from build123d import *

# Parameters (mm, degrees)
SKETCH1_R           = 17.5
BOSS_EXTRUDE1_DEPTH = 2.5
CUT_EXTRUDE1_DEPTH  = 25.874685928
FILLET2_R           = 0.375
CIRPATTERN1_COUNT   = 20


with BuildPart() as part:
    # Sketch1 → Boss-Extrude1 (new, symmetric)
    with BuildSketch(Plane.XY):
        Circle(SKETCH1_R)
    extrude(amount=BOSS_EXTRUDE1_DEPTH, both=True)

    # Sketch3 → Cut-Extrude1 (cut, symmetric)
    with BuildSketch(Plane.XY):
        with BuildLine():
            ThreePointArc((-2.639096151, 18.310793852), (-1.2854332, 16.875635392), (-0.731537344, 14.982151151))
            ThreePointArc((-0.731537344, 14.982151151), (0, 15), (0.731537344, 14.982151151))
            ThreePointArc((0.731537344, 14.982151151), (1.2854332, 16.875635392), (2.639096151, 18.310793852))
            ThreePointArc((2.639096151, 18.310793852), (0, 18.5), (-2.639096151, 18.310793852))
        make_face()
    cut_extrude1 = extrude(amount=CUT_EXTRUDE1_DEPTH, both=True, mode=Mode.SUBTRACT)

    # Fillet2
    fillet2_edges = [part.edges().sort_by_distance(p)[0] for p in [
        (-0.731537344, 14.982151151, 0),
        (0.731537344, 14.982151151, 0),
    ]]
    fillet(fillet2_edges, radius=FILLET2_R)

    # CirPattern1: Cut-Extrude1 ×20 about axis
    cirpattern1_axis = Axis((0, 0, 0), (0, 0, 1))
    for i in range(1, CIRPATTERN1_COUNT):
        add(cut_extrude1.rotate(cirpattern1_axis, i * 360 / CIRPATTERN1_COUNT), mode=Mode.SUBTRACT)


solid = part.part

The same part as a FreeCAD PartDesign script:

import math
import FreeCAD as App
import Part
import Sketcher


def edges_at(feature, points):
    """Names of the edges that pass closest to the given points."""
    edges = feature.Shape.Edges
    near = lambda p: min(range(len(edges)), key=lambda i: edges[i].distToShape(Part.Vertex(*p))[0])
    return sorted({f"Edge{near(p) + 1}" for p in points})

doc = App.newDocument("Part")
params = doc.addObject("Spreadsheet::Sheet", "Params")
for row, (alias, value) in enumerate([
    ("sketch1_diameter", "35 mm"),
    ("pad1_length", "5 mm"),
    ("sketch2_radius", "15 mm"),
    ("sketch2_radius2", "18.5 mm"),
    ("pocket1_length", "51.749372 mm"),
    ("fillet_radius", "0.375 mm"),
], start=1):
    params.set(f"A{row}", alias)
    params.set(f"B{row}", "=" + value)
    params.setAlias(f"B{row}", alias)

body = doc.addObject("PartDesign::Body", "Body")

# Sketch on XY plane
sketch1 = body.newObject("Sketcher::SketchObject", "Sketch")
sketch1.AttachmentSupport = (doc.getObject("XY_Plane"), [""])
sketch1.MapMode = "FlatFace"
sketch1.addGeometry(Part.Circle(App.Vector(0, 0, 0), App.Vector(0, 0, 1), 17.5), False)
sketch1.addConstraint(Sketcher.Constraint("Coincident", 0, 3, -1, 1))
sketch1.addConstraint(Sketcher.Constraint("Diameter", 0, 35.0))
sketch1.setExpression("Constraints[1]", "Params.sketch1_diameter")
pad1 = body.newObject("PartDesign::Pad", "Pad")
pad1.Profile = sketch1
pad1.setExpression("Length", "Params.pad1_length")
pad1.Midplane = True

# Sketch on XY plane
sketch2 = body.newObject("Sketcher::SketchObject", "Sketch001")
sketch2.AttachmentSupport = (doc.getObject("XY_Plane"), [""])
sketch2.MapMode = "FlatFace"
sketch2.addGeometry(Part.ArcOfCircle(Part.Circle(App.Vector(-4.94884, 14.776232, 0), App.Vector(0, 0, 1), 4.222327), math.radians(2.795376), math.radians(56.836431)), False)
sketch2.addGeometry(Part.ArcOfCircle(Part.Circle(App.Vector(0, 0, 0), App.Vector(0, 0, 1), 15), math.radians(87.204624), math.radians(92.795376)), False)
sketch2.addGeometry(Part.ArcOfCircle(Part.Circle(App.Vector(4.94884, 14.776232, 0), App.Vector(0, 0, 1), 4.222327), math.radians(123.163569), math.radians(177.204624)), False)
sketch2.addGeometry(Part.ArcOfCircle(Part.Circle(App.Vector(0, 0, 0), App.Vector(0, 0, 1), 18.5), math.radians(81.798558), math.radians(98.201442)), False)
sketch2.addConstraint(Sketcher.Constraint("Coincident", 0, 1, 1, 2))
sketch2.addConstraint(Sketcher.Constraint("Coincident", 1, 1, 2, 2))
sketch2.addConstraint(Sketcher.Constraint("Coincident", 2, 1, 3, 1))
sketch2.addConstraint(Sketcher.Constraint("Coincident", 3, 2, 0, 2))
sketch2.addConstraint(Sketcher.Constraint("Coincident", 1, 3, -1, 1))
sketch2.addConstraint(Sketcher.Constraint("Coincident", 3, 3, -1, 1))
sketch2.addConstraint(Sketcher.Constraint("Equal", 0, 2))
sketch2.addConstraint(Sketcher.Constraint("Symmetric", 0, 3, 2, 3, -2))
sketch2.addConstraint(Sketcher.Constraint("Radius", 1, 15.0))
sketch2.addConstraint(Sketcher.Constraint("Radius", 3, 18.5))
sketch2.addConstraint(Sketcher.Constraint("Radius", 0, 4.222327))
sketch2.addConstraint(Sketcher.Constraint("DistanceX", 0, 3, -1, 1, 4.94884))
sketch2.addConstraint(Sketcher.Constraint("DistanceY", -1, 1, 0, 3, 14.776232))
sketch2.setExpression("Constraints[8]", "Params.sketch2_radius")
sketch2.setExpression("Constraints[9]", "Params.sketch2_radius2")
pocket1 = body.newObject("PartDesign::Pocket", "Pocket")
pocket1.Profile = sketch2
pocket1.setExpression("Length", "Params.pocket1_length")
pocket1.Midplane = True
doc.recompute()

fillet = body.newObject("PartDesign::Fillet", "Fillet")
fillet.Base = (pocket1, edges_at(pocket1, [(-0.732, 14.982, 0), (0.732, 14.982, 0)]))
fillet.setExpression("Radius", "Params.fillet_radius")
doc.recompute()

polarpattern = body.newObject("PartDesign::PolarPattern", "PolarPattern")
polarpattern.Originals = [pocket1]
polarpattern.Axis = (doc.getObject("Z_Axis"), [""])
polarpattern.Angle = 360
polarpattern.Occurrences = 20
body.Tip = polarpattern

doc.recompute()
